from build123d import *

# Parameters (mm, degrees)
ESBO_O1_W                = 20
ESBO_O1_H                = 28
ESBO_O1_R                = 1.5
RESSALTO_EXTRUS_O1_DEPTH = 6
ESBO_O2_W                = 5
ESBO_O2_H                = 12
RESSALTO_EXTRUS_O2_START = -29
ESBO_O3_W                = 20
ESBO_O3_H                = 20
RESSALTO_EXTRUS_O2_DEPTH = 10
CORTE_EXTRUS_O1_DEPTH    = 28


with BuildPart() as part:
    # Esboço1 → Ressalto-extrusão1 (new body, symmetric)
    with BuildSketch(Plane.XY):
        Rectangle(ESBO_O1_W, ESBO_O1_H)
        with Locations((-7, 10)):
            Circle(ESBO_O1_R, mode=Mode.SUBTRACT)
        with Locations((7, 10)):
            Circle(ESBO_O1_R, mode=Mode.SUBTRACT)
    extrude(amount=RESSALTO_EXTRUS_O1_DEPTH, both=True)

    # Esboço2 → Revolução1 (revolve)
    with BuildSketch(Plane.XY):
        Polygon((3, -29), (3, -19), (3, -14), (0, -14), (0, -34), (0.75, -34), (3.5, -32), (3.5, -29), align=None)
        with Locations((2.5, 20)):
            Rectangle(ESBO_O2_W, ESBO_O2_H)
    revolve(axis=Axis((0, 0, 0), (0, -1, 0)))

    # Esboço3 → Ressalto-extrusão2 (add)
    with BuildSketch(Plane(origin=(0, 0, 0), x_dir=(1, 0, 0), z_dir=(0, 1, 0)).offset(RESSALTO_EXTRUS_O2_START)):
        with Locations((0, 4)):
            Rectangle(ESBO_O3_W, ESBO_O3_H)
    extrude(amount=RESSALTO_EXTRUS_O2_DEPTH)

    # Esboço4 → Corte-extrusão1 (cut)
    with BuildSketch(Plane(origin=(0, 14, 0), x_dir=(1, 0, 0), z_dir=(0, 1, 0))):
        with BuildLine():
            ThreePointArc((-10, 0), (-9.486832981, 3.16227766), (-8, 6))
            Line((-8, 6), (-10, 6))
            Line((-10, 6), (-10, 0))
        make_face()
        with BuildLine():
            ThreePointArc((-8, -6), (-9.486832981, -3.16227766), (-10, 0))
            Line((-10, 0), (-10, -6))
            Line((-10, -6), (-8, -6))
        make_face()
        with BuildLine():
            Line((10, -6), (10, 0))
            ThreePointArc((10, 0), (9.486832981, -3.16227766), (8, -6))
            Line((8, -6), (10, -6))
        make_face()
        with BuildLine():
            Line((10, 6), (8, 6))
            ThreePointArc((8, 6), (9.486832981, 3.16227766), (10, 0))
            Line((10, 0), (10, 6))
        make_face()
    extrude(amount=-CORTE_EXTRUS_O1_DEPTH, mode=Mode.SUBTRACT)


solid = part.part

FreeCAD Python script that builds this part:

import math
import FreeCAD as App
import Part
import Sketcher
from FreeCAD import Vector
Q = App.Units.Quantity


def add_polygon(sketch, points):
    """Adds a closed chain of lines whose ends are joined by coincident constraints."""
    first, n = sketch.GeometryCount, len(points)
    for a, b in zip(points, points[1:] + points[:1]):
        sketch.addGeometry(Part.LineSegment(App.Vector(*a, 0), App.Vector(*b, 0)), False)
    for i in range(n):
        sketch.addConstraint(Sketcher.Constraint("Coincident", first + i, 2, first + (i + 1) % n, 1))

doc = App.newDocument("Part")
body = doc.addObject("PartDesign::Body", "Body")

# Sketch on XY plane
sketch1 = body.newObject("Sketcher::SketchObject", "Sketch")
sketch1.AttachmentSupport = (doc.getObject("XY_Plane"), [""])
sketch1.MapMode = "FlatFace"
add_polygon(sketch1, [(-10, 14), (-10, -14), (10, -14), (10, 14)])  # lines 0-3
sketch1.addGeometry(Part.Circle(Vector(-7, 10, 0), Vector(0, 0, 1), 1.5), False)  # 4
sketch1.addGeometry(Part.Circle(Vector(7, 10, 0), Vector(0, 0, 1), 1.5), False)  # 5
sketch1.addConstraint([
    Sketcher.Constraint("Vertical", 0),
    Sketcher.Constraint("Horizontal", 1),
    Sketcher.Constraint("Vertical", 2),
    Sketcher.Constraint("Horizontal", 3),
    Sketcher.Constraint("Equal", 4, 5),
    Sketcher.Constraint("Symmetric", 0, 2, 2, 2, -1, 1),
    Sketcher.Constraint("Symmetric", 4, 3, 5, 3, -2),
    Sketcher.Constraint("Diameter", 4, Q("3 mm")),
    Sketcher.Constraint("DistanceX", 1, 1, 1, 2, Q("20 mm")),
    Sketcher.Constraint("DistanceY", 0, 2, 0, 1, Q("28 mm")),
    Sketcher.Constraint("DistanceX", 4, 3, -1, 1, Q("7 mm")),
    Sketcher.Constraint("DistanceY", -1, 1, 4, 3, Q("10 mm")),
])
pad1 = body.newObject("PartDesign::Pad", "Pad")
pad1.Profile = sketch1
pad1.Length = 12
pad1.Midplane = True

# Sketch on XY plane
sketch2 = body.newObject("Sketcher::SketchObject", "Sketch001")
sketch2.AttachmentSupport = (doc.getObject("XY_Plane"), [""])
sketch2.MapMode = "FlatFace"
add_polygon(sketch2, [(3, -29), (3, -14), (0, -14), (0, -34), (0.8, -34), (3.5, -32), (3.5, -29)])  # lines 0-6
add_polygon(sketch2, [(0, 26), (0, 14), (5, 14), (5, 26)])  # lines 7-10
sketch2.addConstraint([
    Sketcher.Constraint("Vertical", 0),
    Sketcher.Constraint("Horizontal", 1),
    Sketcher.Constraint("Vertical", 2),
    Sketcher.Constraint("Horizontal", 3),
    Sketcher.Constraint("Vertical", 5),
    Sketcher.Constraint("Horizontal", 6),
    Sketcher.Constraint("Vertical", 7),
    Sketcher.Constraint("Horizontal", 8),
    Sketcher.Constraint("Vertical", 9),
    Sketcher.Constraint("Horizontal", 10),
    Sketcher.Constraint("Symmetric", 1, 2, 7, 2, -1, 1),
    Sketcher.Constraint("PointOnObject", 1, 2, -2),
    Sketcher.Constraint("Equal", 1, 5),
    Sketcher.Constraint("DistanceX", 1, 2, 1, 1, Q("3 mm")),
    Sketcher.Constraint("DistanceX", 8, 1, 8, 2, Q("5 mm")),
    Sketcher.Constraint("DistanceY", 0, 1, 0, 2, Q("15 mm")),
    Sketcher.Constraint("DistanceY", 2, 2, 2, 1, Q("20 mm")),
    Sketcher.Constraint("DistanceY", 7, 2, 7, 1, Q("12 mm")),
    Sketcher.Constraint("DistanceX", 6, 2, 6, 1, Q("0.5 mm")),
    Sketcher.Constraint("DistanceY", 0, 2, -1, 1, Q("14 mm")),
    Sketcher.Constraint("DistanceX", 3, 1, 3, 2, Q("0.75 mm")),
])
revolution = body.newObject("PartDesign::Revolution", "Revolution")
revolution.Profile = sketch2
revolution.ReferenceAxis = (sketch2, ["V_Axis"])
revolution.Angle = 360

# Sketch on XZ plane
sketch3 = body.newObject("Sketcher::SketchObject", "Sketch002")
sketch3.AttachmentSupport = (doc.getObject("XZ_Plane"), [""])
sketch3.MapMode = "FlatFace"
sketch3.AttachmentOffset = App.Placement(Vector(0, 0, 29), App.Rotation())
add_polygon(sketch3, [(-10, -14), (-10, 6), (10, 6), (10, -14)])  # lines 0-3
sketch3.addConstraint([
    Sketcher.Constraint("Vertical", 0),
    Sketcher.Constraint("Horizontal", 1),
    Sketcher.Constraint("Vertical", 2),
    Sketcher.Constraint("Horizontal", 3),
    Sketcher.Constraint("Equal", 3, 0),
    Sketcher.Constraint("DistanceX", 1, 1, 1, 2, Q("20 mm")),
    Sketcher.Constraint("DistanceX", 0, 2, -1, 1, Q("10 mm")),
    Sketcher.Constraint("DistanceY", -1, 1, 0, 2, Q("6 mm")),
])
pad2 = body.newObject("PartDesign::Pad", "Pad001")
pad2.Profile = sketch3
pad2.Length = 10
pad2.Reversed = True

# Sketch on XZ plane
sketch4 = body.newObject("Sketcher::SketchObject", "Sketch003")
sketch4.AttachmentSupport = (doc.getObject("XZ_Plane"), [""])
sketch4.MapMode = "FlatFace"
sketch4.AttachmentOffset = App.Placement(Vector(0, 0, -14), App.Rotation())
sketch4.addGeometry([
    Part.ArcOfCircle(Part.Circle(Vector(0, 0, 0), Vector(0, 0, 1), 10), math.radians(180), math.radians(217)),  # 0
    Part.LineSegment(Vector(-8, -6, 0), Vector(-10, -6, 0)),  # 1
    Part.LineSegment(Vector(-10, -6, 0), Vector(-10, 0, 0)),  # 2
    Part.ArcOfCircle(Part.Circle(Vector(0, 0, 0), Vector(0, 0, 1), 10), math.radians(143), math.radians(180)),  # 3
    Part.LineSegment(Vector(-10, 0, 0), Vector(-10, 6, 0)),  # 4
    Part.LineSegment(Vector(-10, 6, 0), Vector(-8, 6, 0)),  # 5
    Part.LineSegment(Vector(10, 6, 0), Vector(10, 0, 0)),  # 6
    Part.ArcOfCircle(Part.Circle(Vector(0, 0, 0), Vector(0, 0, 1), 10), math.radians(0), math.radians(37)),  # 7
    Part.LineSegment(Vector(8, 6, 0), Vector(10, 6, 0)),  # 8
    Part.LineSegment(Vector(10, -6, 0), Vector(8, -6, 0)),  # 9
    Part.ArcOfCircle(Part.Circle(Vector(0, 0, 0), Vector(0, 0, 1), 10), math.radians(-37), math.radians(0)),  # 10
    Part.LineSegment(Vector(10, 0, 0), Vector(10, -6, 0)),  # 11
], False)
sketch4.addConstraint([
    Sketcher.Constraint("Coincident", 0, 2, 1, 1),
    Sketcher.Constraint("Coincident", 1, 2, 2, 1),
    Sketcher.Constraint("Tangent", 2, 2, 0, 1),
    Sketcher.Constraint("Tangent", 3, 2, 4, 1),
    Sketcher.Constraint("Coincident", 4, 2, 5, 1),
    Sketcher.Constraint("Coincident", 5, 2, 3, 1),
    Sketcher.Constraint("Tangent", 6, 2, 7, 1),
    Sketcher.Constraint("Coincident", 7, 2, 8, 1),
    Sketcher.Constraint("Coincident", 8, 2, 6, 1),
    Sketcher.Constraint("Coincident", 9, 2, 10, 1),
    Sketcher.Constraint("Tangent", 10, 2, 11, 1),
    Sketcher.Constraint("Coincident", 11, 2, 9, 1),
    Sketcher.Constraint("Horizontal", 1),
    Sketcher.Constraint("Vertical", 2),
    Sketcher.Constraint("Vertical", 4),
    Sketcher.Constraint("Horizontal", 5),
    Sketcher.Constraint("Vertical", 6),
    Sketcher.Constraint("Horizontal", 8),
    Sketcher.Constraint("Horizontal", 9),
    Sketcher.Constraint("Vertical", 11),
    Sketcher.Constraint("Coincident", 0, 3, -1, 1),
    Sketcher.Constraint("Coincident", 3, 3, -1, 1),
    Sketcher.Constraint("Coincident", 7, 3, -1, 1),
    Sketcher.Constraint("Coincident", 10, 3, -1, 1),
    Sketcher.Constraint("Equal", 0, 3),
    Sketcher.Constraint("Equal", 3, 7),
    Sketcher.Constraint("Equal", 7, 10),
    Sketcher.Constraint("Horizontal", 5, 2, 7, 2),
    Sketcher.Constraint("Horizontal", 1, 2, 9, 2),
    Sketcher.Constraint("Vertical", 0, 2, 5, 2),
    Sketcher.Constraint("Radius", 0, Q("10 mm")),
    Sketcher.Constraint("DistanceX", 1, 2, 1, 1, Q("2 mm")),
])
pocket1 = body.newObject("PartDesign::Pocket", "Pocket")
pocket1.Profile = sketch4
pocket1.Length = 28
pocket1.Reversed = True

doc.recompute()
